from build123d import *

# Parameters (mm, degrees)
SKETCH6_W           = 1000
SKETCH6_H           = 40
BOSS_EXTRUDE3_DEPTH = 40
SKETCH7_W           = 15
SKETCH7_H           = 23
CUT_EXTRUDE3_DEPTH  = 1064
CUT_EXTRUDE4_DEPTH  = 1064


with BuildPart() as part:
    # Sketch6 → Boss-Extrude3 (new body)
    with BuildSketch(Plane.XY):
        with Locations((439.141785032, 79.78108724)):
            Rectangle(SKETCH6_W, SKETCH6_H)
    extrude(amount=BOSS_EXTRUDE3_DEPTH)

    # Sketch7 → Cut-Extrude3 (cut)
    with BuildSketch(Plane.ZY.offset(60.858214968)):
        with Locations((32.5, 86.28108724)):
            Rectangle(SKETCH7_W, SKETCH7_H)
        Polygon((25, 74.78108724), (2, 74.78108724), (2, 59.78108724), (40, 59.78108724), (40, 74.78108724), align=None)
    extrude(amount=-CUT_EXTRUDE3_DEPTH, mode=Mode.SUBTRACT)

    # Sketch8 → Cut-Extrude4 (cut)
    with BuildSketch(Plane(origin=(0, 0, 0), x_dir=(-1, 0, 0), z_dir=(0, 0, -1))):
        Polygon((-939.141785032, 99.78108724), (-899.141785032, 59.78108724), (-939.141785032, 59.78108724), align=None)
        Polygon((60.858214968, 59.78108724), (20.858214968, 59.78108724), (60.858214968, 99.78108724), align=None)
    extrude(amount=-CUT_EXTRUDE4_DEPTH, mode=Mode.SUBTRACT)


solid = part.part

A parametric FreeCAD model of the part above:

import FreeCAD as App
import Part
import Sketcher

V = App.Vector

doc = App.newDocument("Part")
body = doc.addObject("PartDesign::Body", "Body")

# Sketch on XY plane
sketch1 = body.newObject("Sketcher::SketchObject", "Sketch")
sketch1.AttachmentSupport = (doc.getObject("XY_Plane"), [""])
sketch1.MapMode = "FlatFace"
sketch1.addGeometry(Part.LineSegment(V(-61, 100, 0), V(-61, 60, 0)), False)
sketch1.addGeometry(Part.LineSegment(V(-61, 60, 0), V(939, 60, 0)), False)
sketch1.addGeometry(Part.LineSegment(V(939, 60, 0), V(939, 100, 0)), False)
sketch1.addGeometry(Part.LineSegment(V(939, 100, 0), V(-61, 100, 0)), False)
sketch1.addConstraint(Sketcher.Constraint("Coincident", 0, 2, 1, 1))
sketch1.addConstraint(Sketcher.Constraint("Coincident", 1, 2, 2, 1))
sketch1.addConstraint(Sketcher.Constraint("Coincident", 2, 2, 3, 1))
sketch1.addConstraint(Sketcher.Constraint("Coincident", 3, 2, 0, 1))
sketch1.addConstraint(Sketcher.Constraint("Vertical", 0))
sketch1.addConstraint(Sketcher.Constraint("Horizontal", 1))
sketch1.addConstraint(Sketcher.Constraint("Vertical", 2))
sketch1.addConstraint(Sketcher.Constraint("Horizontal", 3))
sketch1.addConstraint(Sketcher.Constraint("DistanceX", 1, 1, 1, 2, 1000.0))
sketch1.addConstraint(Sketcher.Constraint("DistanceY", 0, 2, 0, 1, 40.0))
sketch1.addConstraint(Sketcher.Constraint("DistanceX", 0, 2, -1, 1, 60.858215))
sketch1.addConstraint(Sketcher.Constraint("DistanceY", -1, 1, 0, 2, 59.781087))
pad1 = body.newObject("PartDesign::Pad", "Pad")
pad1.Profile = sketch1
pad1.Length = 40

# Sketch on YZ plane
sketch2 = body.newObject("Sketcher::SketchObject", "Sketch001")
sketch2.AttachmentSupport = (doc.getObject("YZ_Plane"), [""])
sketch2.MapMode = "FlatFace"
sketch2.AttachmentOffset = App.Placement(V(0, 0, -60.858215), App.Rotation())
sketch2.addGeometry(Part.LineSegment(V(98, 25, 0), V(75, 25, 0)), False)
sketch2.addGeometry(Part.LineSegment(V(75, 25, 0), V(75, 2, 0)), False)
sketch2.addGeometry(Part.LineSegment(V(75, 2, 0), V(60, 2, 0)), False)
sketch2.addGeometry(Part.LineSegment(V(60, 2, 0), V(60, 40, 0)), False)
sketch2.addGeometry(Part.LineSegment(V(60, 40, 0), V(98, 40, 0)), False)
sketch2.addGeometry(Part.LineSegment(V(98, 40, 0), V(98, 25, 0)), False)
sketch2.addConstraint(Sketcher.Constraint("Coincident", 0, 2, 1, 1))
sketch2.addConstraint(Sketcher.Constraint("Coincident", 1, 2, 2, 1))
sketch2.addConstraint(Sketcher.Constraint("Coincident", 2, 2, 3, 1))
sketch2.addConstraint(Sketcher.Constraint("Coincident", 3, 2, 4, 1))
sketch2.addConstraint(Sketcher.Constraint("Coincident", 4, 2, 5, 1))
sketch2.addConstraint(Sketcher.Constraint("Coincident", 5, 2, 0, 1))
sketch2.addConstraint(Sketcher.Constraint("Horizontal", 0))
sketch2.addConstraint(Sketcher.Constraint("Vertical", 1))
sketch2.addConstraint(Sketcher.Constraint("Horizontal", 2))
sketch2.addConstraint(Sketcher.Constraint("Vertical", 3))
sketch2.addConstraint(Sketcher.Constraint("Horizontal", 4))
sketch2.addConstraint(Sketcher.Constraint("Vertical", 5))
sketch2.addConstraint(Sketcher.Constraint("Equal", 0, 1))
sketch2.addConstraint(Sketcher.Constraint("Equal", 4, 3))
sketch2.addConstraint(Sketcher.Constraint("DistanceX", 0, 2, 0, 1, 23.0))
sketch2.addConstraint(Sketcher.Constraint("DistanceX", 2, 2, 2, 1, 15.0))
sketch2.addConstraint(Sketcher.Constraint("DistanceY", -1, 1, 0, 2, 25.0))
sketch2.addConstraint(Sketcher.Constraint("DistanceX", -1, 1, 0, 2, 74.781087))
pocket1 = body.newObject("PartDesign::Pocket", "Pocket")
pocket1.Profile = sketch2
pocket1.Length = 1064
pocket1.Reversed = True

# Sketch on XY plane
sketch3 = body.newObject("Sketcher::SketchObject", "Sketch002")
sketch3.AttachmentSupport = (doc.getObject("XY_Plane"), [""])
sketch3.MapMode = "FlatFace"
sketch3.addGeometry(Part.LineSegment(V(899, 60, 0), V(939, 100, 0)), False)
sketch3.addGeometry(Part.LineSegment(V(939, 100, 0), V(939, 60, 0)), False)
sketch3.addGeometry(Part.LineSegment(V(939, 60, 0), V(899, 60, 0)), False)
sketch3.addGeometry(Part.LineSegment(V(-21, 60, 0), V(-61, 60, 0)), False)
sketch3.addGeometry(Part.LineSegment(V(-61, 60, 0), V(-61, 100, 0)), False)
sketch3.addGeometry(Part.LineSegment(V(-61, 100, 0), V(-21, 60, 0)), False)
sketch3.addConstraint(Sketcher.Constraint("Coincident", 0, 2, 1, 1))
sketch3.addConstraint(Sketcher.Constraint("Coincident", 1, 2, 2, 1))
sketch3.addConstraint(Sketcher.Constraint("Coincident", 2, 2, 0, 1))
sketch3.addConstraint(Sketcher.Constraint("Coincident", 3, 2, 4, 1))
sketch3.addConstraint(Sketcher.Constraint("Coincident", 4, 2, 5, 1))
sketch3.addConstraint(Sketcher.Constraint("Coincident", 5, 2, 3, 1))
sketch3.addConstraint(Sketcher.Constraint("Vertical", 1))
sketch3.addConstraint(Sketcher.Constraint("Horizontal", 2))
sketch3.addConstraint(Sketcher.Constraint("Horizontal", 3))
sketch3.addConstraint(Sketcher.Constraint("Vertical", 4))
sketch3.addConstraint(Sketcher.Constraint("Perpendicular", 0, 5))
sketch3.addConstraint(Sketcher.Constraint("Horizontal", 2, 2, 3, 2))
sketch3.addConstraint(Sketcher.Constraint("Horizontal", 0, 2, 4, 2))
sketch3.addConstraint(Sketcher.Constraint("Equal", 2, 3))
sketch3.addConstraint(Sketcher.Constraint("DistanceX", 2, 2, 2, 1, 40.0))
sketch3.addConstraint(Sketcher.Constraint("DistanceX", 3, 2, 2, 2, 960.0))
sketch3.addConstraint(Sketcher.Constraint("DistanceX", -1, 1, 0, 2, 939.141785))
sketch3.addConstraint(Sketcher.Constraint("DistanceY", -1, 1, 0, 2, 99.781087))
pocket2 = body.newObject("PartDesign::Pocket", "Pocket001")
pocket2.Profile = sketch3
pocket2.Length = 1064
pocket2.Reversed = True

doc.recompute()
